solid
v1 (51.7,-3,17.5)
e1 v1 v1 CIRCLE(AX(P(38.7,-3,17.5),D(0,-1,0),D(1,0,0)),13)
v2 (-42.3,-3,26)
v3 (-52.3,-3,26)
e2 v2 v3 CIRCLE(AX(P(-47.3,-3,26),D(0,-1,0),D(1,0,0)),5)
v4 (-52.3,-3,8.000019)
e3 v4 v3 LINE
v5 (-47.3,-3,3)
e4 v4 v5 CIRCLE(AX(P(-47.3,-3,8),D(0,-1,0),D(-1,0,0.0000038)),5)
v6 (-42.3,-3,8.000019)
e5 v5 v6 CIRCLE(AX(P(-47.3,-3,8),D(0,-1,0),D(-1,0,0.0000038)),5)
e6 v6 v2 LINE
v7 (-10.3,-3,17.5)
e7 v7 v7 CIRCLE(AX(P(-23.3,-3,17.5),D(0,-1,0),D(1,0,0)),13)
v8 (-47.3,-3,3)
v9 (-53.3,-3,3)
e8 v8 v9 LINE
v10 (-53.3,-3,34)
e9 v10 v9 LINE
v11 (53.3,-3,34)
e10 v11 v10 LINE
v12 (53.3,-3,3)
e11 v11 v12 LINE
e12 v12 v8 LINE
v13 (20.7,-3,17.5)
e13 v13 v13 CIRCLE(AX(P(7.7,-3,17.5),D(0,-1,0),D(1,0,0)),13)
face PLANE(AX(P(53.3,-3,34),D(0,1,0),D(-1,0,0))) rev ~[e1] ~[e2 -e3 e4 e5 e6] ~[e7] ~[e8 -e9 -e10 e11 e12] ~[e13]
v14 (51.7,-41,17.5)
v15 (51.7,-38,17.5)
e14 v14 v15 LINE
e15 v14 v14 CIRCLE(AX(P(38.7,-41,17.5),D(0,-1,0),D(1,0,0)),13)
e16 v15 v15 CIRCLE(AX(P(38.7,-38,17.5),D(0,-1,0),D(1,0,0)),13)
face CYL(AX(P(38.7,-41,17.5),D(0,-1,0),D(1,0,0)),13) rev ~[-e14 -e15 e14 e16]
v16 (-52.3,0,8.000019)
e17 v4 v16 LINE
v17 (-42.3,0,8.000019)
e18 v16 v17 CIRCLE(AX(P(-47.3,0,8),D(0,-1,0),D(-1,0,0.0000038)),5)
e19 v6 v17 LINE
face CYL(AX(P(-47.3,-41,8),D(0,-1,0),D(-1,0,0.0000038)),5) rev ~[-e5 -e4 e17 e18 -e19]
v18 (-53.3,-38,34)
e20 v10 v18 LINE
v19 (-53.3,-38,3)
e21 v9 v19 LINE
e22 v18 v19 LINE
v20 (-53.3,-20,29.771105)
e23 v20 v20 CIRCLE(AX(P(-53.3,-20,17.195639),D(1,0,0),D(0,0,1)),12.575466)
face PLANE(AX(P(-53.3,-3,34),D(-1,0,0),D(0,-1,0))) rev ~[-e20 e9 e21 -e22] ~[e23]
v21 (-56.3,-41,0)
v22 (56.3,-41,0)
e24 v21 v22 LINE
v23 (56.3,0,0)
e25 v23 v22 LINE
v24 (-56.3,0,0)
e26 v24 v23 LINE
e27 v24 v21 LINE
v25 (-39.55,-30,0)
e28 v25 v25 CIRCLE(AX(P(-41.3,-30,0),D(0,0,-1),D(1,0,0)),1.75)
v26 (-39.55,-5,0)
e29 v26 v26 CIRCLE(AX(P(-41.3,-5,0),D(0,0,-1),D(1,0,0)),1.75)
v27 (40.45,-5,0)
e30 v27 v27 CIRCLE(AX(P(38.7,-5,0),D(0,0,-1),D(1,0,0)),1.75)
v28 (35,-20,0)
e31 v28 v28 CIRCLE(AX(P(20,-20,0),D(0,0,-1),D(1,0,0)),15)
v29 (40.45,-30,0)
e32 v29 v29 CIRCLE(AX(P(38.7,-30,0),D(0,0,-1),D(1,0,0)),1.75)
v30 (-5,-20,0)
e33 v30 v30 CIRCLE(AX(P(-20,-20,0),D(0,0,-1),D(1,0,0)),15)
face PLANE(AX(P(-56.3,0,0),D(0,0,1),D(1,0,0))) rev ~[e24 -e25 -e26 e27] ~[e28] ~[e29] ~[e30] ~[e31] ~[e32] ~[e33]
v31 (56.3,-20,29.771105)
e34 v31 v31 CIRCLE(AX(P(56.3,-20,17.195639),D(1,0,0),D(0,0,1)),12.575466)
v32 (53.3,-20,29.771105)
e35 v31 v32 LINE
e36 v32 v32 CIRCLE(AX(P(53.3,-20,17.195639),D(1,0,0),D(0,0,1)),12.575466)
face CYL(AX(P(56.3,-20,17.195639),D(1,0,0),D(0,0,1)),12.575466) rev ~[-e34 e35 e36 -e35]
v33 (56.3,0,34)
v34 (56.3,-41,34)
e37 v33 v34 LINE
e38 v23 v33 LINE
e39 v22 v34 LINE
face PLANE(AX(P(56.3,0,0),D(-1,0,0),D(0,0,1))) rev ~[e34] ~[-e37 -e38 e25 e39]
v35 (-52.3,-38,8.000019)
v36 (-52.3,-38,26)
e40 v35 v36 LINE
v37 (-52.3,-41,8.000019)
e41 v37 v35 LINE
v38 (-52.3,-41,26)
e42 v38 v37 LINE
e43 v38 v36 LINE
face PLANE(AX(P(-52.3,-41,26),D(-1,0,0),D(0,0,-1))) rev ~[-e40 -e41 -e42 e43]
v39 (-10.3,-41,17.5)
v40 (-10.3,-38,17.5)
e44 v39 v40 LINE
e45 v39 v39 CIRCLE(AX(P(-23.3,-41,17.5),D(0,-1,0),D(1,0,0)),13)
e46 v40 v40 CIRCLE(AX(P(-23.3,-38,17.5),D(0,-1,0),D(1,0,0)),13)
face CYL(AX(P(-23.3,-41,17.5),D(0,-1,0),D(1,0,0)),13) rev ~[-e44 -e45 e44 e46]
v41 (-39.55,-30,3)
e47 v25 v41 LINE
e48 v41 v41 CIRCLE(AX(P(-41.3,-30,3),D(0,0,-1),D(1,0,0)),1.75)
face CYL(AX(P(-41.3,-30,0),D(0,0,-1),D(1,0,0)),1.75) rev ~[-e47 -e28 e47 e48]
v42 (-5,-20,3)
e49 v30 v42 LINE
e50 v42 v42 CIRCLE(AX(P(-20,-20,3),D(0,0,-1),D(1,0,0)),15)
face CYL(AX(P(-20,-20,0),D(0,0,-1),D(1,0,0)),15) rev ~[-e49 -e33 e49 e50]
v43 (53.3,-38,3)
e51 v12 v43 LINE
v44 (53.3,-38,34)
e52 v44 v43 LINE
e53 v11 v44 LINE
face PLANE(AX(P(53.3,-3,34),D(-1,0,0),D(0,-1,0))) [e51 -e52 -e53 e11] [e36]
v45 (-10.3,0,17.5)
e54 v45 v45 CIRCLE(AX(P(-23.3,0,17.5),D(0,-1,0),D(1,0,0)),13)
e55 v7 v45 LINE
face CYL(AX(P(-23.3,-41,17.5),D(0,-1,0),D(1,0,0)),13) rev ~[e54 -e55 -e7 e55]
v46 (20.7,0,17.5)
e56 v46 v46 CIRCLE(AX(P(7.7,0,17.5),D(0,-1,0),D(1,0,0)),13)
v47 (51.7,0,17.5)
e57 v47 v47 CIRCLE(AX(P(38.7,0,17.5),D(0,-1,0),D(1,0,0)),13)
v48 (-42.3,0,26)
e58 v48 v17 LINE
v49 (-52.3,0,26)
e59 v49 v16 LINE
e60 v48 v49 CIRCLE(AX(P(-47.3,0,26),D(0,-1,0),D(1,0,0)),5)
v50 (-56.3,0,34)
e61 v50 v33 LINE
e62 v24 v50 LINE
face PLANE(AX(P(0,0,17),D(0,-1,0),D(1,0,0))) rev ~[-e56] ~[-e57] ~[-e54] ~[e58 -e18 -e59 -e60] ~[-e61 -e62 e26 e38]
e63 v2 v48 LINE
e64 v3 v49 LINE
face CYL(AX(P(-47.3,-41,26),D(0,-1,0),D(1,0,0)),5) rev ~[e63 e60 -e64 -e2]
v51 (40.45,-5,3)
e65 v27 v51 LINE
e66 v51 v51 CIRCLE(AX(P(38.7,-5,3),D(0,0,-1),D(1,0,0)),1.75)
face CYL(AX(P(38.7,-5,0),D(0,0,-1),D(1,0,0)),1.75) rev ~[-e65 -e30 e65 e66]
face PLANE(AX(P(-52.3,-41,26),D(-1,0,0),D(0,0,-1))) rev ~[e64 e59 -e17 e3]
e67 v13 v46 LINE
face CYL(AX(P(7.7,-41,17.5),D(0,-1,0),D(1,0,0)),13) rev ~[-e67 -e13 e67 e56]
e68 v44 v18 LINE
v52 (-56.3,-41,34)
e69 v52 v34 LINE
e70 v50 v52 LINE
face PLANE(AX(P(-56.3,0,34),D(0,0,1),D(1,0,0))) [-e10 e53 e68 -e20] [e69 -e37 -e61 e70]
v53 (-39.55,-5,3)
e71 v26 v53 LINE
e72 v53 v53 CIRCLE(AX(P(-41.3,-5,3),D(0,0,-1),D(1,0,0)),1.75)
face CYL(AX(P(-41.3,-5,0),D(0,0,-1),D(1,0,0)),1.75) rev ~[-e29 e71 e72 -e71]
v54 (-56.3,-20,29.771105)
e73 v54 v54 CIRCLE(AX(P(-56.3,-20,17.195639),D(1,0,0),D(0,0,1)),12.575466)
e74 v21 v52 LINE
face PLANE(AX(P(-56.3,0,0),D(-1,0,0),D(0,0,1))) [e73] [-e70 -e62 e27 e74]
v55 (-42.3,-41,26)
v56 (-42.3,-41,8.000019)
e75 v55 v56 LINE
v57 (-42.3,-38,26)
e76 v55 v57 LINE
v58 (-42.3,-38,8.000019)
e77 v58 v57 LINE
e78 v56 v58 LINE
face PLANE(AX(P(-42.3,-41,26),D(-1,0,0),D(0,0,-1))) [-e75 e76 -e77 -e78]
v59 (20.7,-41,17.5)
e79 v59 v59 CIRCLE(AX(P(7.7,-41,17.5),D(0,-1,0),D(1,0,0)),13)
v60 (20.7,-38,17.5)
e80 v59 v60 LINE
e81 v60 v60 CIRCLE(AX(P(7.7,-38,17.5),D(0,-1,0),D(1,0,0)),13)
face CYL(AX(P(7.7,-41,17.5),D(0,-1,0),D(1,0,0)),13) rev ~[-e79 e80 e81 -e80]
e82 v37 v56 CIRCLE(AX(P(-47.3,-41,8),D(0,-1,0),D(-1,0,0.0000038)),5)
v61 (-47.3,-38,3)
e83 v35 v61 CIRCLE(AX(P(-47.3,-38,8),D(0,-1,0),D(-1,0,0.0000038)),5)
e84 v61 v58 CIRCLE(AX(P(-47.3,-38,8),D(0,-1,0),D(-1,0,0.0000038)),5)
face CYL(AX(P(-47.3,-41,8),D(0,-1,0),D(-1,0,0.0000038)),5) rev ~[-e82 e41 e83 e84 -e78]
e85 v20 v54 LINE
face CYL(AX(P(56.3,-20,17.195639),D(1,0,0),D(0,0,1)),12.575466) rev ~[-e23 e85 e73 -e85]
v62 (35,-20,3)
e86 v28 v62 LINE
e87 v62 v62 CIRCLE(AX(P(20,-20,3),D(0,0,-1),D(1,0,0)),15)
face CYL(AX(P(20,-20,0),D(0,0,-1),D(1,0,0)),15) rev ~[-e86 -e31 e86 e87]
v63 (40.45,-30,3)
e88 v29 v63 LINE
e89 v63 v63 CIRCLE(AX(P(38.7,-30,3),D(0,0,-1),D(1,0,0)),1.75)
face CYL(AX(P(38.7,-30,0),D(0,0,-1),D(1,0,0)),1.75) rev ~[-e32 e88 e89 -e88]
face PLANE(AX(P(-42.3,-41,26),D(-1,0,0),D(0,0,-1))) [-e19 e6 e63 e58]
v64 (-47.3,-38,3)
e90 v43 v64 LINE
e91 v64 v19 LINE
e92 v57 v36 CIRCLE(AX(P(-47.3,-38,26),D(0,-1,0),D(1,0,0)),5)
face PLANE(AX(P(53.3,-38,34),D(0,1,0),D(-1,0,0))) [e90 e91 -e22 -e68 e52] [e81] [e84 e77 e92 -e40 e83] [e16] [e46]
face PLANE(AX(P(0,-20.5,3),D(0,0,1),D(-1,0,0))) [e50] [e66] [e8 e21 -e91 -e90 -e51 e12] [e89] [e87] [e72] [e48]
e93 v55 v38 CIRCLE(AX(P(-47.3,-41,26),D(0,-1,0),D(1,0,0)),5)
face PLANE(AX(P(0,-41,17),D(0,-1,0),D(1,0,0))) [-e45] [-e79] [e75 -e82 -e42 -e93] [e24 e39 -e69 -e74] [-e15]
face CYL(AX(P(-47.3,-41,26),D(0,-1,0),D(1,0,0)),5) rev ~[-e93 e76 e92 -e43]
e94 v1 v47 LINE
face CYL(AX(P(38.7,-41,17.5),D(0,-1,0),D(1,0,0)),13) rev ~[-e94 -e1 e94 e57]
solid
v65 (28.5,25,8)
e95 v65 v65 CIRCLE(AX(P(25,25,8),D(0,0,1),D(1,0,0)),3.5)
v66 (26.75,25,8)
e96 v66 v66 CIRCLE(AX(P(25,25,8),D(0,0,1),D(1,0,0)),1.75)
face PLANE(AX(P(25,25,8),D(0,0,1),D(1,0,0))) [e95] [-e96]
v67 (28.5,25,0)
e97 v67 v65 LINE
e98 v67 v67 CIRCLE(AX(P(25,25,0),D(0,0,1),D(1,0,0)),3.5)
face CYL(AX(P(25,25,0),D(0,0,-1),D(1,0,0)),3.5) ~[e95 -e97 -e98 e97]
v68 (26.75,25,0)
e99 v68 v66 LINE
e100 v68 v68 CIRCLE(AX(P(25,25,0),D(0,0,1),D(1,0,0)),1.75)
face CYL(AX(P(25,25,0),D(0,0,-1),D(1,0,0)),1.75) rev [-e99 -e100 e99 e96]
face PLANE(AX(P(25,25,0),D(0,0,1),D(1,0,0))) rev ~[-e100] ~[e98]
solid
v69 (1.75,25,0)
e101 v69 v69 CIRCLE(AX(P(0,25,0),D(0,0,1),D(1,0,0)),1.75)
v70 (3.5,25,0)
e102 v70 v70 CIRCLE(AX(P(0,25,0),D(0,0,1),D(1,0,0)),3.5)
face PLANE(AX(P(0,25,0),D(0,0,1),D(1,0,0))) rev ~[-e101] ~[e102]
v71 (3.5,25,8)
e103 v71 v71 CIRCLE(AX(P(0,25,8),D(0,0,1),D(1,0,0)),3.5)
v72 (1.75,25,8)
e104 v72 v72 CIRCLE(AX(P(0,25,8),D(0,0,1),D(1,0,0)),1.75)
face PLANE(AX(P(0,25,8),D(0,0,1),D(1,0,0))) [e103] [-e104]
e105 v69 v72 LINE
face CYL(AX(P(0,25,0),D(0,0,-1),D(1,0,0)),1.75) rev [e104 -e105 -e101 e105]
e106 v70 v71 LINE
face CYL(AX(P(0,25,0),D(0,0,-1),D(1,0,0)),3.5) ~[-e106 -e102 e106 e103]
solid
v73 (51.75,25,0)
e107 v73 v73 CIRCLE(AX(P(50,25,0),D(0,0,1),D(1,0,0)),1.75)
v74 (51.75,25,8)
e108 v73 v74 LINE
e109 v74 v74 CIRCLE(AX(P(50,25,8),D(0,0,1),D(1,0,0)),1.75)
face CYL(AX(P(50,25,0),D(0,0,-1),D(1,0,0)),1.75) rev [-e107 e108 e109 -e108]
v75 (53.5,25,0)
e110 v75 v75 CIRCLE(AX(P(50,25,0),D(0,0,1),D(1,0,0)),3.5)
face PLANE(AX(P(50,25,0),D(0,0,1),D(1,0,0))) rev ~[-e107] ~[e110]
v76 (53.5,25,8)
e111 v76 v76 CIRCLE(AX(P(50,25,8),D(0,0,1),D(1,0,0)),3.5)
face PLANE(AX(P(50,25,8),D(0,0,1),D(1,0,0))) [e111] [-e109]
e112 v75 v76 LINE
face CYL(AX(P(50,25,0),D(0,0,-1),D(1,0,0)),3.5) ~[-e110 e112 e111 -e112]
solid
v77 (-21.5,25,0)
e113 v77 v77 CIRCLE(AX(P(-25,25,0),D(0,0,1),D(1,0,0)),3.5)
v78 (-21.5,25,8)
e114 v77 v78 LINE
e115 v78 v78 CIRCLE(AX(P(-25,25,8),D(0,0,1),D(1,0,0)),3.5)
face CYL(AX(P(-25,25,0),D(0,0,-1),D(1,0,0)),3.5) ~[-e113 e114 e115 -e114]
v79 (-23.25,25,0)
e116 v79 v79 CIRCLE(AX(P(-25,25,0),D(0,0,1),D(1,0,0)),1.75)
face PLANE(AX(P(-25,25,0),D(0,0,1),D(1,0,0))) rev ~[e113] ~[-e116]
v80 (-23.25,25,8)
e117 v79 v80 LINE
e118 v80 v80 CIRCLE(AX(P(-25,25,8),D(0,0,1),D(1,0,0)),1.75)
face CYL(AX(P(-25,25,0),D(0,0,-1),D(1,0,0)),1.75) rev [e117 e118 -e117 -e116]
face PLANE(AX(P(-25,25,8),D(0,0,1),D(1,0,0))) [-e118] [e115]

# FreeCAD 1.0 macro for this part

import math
import FreeCAD as App
import Part
import Sketcher

V = App.Vector
Q = App.Units.Quantity


def add_polygon(sketch, points):
    """Adds a closed chain of lines whose ends are joined by coincident constraints."""
    first, n = sketch.GeometryCount, len(points)
    for a, b in zip(points, points[1:] + points[:1]):
        sketch.addGeometry(Part.LineSegment(App.Vector(*a, 0), App.Vector(*b, 0)), False)
    for i in range(n):
        sketch.addConstraint(Sketcher.Constraint("Coincident", first + i, 2, first + (i + 1) % n, 1))

doc = App.newDocument("Part")
body = doc.addObject("PartDesign::Body", "Body")

sketch1 = doc.addObject("Sketcher::SketchObject", "Sketch")
body.addObject(sketch1)
sketch1.AttachmentSupport = (doc.XY_Plane, [""])
sketch1.MapMode = "FlatFace"
sketch1.addGeometry(Part.Circle(V(50, 25, 0), V(0, 0, 1), 3.5), False)
sketch1.addGeometry(Part.Circle(V(50, 25, 0), V(0, 0, 1), 1.8), False)
sketch1.addConstraint(Sketcher.Constraint("Coincident", 1, 3, 0, 3))
sketch1.addConstraint(Sketcher.Constraint("Diameter", 0, Q("7 mm")))
sketch1.addConstraint(Sketcher.Constraint("Diameter", 1, Q("3.5 mm")))
sketch1.addConstraint(Sketcher.Constraint("DistanceX", -1, 1, 0, 3, Q("50 mm")))
sketch1.addConstraint(Sketcher.Constraint("DistanceY", -1, 1, 0, 3, Q("25 mm")))
pad1 = doc.addObject("PartDesign::Pad", "Pad")
body.addObject(pad1)
pad1.Profile = sketch1
pad1.Length = 8
body2 = doc.addObject("PartDesign::Body", "Body001")

sketch2 = doc.addObject("Sketcher::SketchObject", "Sketch001")
body2.addObject(sketch2)
sketch2.AttachmentSupport = (doc.getObject("XZ_Plane001"), [""])
sketch2.MapMode = "FlatFace"
add_polygon(sketch2, [(-56, 34), (-56, 0), (56, 0), (56, 34)])
sketch2.addConstraint(Sketcher.Constraint("Vertical", 0))
sketch2.addConstraint(Sketcher.Constraint("Horizontal", 1))
sketch2.addConstraint(Sketcher.Constraint("Vertical", 2))
sketch2.addConstraint(Sketcher.Constraint("Horizontal", 3))
sketch2.addConstraint(Sketcher.Constraint("Symmetric", 0, 2, 1, 2, -1, 1))
sketch2.addConstraint(Sketcher.Constraint("DistanceY", 0, 2, 0, 1, Q("34 mm")))
sketch2.addConstraint(Sketcher.Constraint("DistanceX", 1, 1, 1, 2, Q("112.6 mm")))
pad2 = doc.addObject("PartDesign::Pad", "Pad001")
body2.addObject(pad2)
pad2.Profile = sketch2
pad2.Length = 41

sketch3 = doc.addObject("Sketcher::SketchObject", "Sketch002")
body2.addObject(sketch3)
sketch3.AttachmentSupport = (doc.getObject("XY_Plane001"), [""])
sketch3.MapMode = "FlatFace"
sketch3.AttachmentOffset = App.Placement(V(0, 0, 34), App.Rotation())
add_polygon(sketch3, [(53, -38), (53, -3), (-53, -3), (-53, -38)])
sketch3.addConstraint(Sketcher.Constraint("Vertical", 0))
sketch3.addConstraint(Sketcher.Constraint("Horizontal", 1))
sketch3.addConstraint(Sketcher.Constraint("Vertical", 2))
sketch3.addConstraint(Sketcher.Constraint("Horizontal", 3))
sketch3.addConstraint(Sketcher.Constraint("DistanceY", 0, 1, 0, 2, Q("35 mm")))
sketch3.addConstraint(Sketcher.Constraint("DistanceX", 1, 2, 1, 1, Q("106.6 mm")))
sketch3.addConstraint(Sketcher.Constraint("DistanceY", 0, 2, -1, 1, Q("3 mm")))
sketch3.addConstraint(Sketcher.Constraint("DistanceX", -1, 1, 0, 2, Q("53.3 mm")))
pocket1 = doc.addObject("PartDesign::Pocket", "Pocket")
body2.addObject(pocket1)
pocket1.Profile = sketch3
pocket1.Length = 31

sketch4 = doc.addObject("Sketcher::SketchObject", "Sketch003")
body2.addObject(sketch4)
sketch4.AttachmentSupport = (doc.getObject("XZ_Plane001"), [""])
sketch4.MapMode = "FlatFace"
sketch4.AttachmentOffset = App.Placement(V(0, 0, 41), App.Rotation())
sketch4.addGeometry(Part.Circle(V(-23, 18, 0), V(0, 0, 1), 13), False)
sketch4.addGeometry(Part.Circle(V(8, 18, 0), V(0, 0, 1), 13), False)
sketch4.addGeometry(Part.Circle(V(39, 18, 0), V(0, 0, 1), 13), False)
sketch4.addGeometry(Part.ArcOfCircle(Part.Circle(V(-47, 26, 0), V(0, 0, 1), 5), math.radians(0), math.radians(180)), False)
sketch4.addGeometry(Part.LineSegment(V(-52, 26, 0), V(-52, 8, 0)), False)
sketch4.addGeometry(Part.ArcOfCircle(Part.Circle(V(-47, 8, 0), V(0, 0, 1), 5), math.radians(180), math.radians(360)), False)
sketch4.addGeometry(Part.LineSegment(V(-42, 8, 0), V(-42, 26, 0)), False)
sketch4.addConstraint(Sketcher.Constraint("Tangent", 3, 2, 4, 1))
sketch4.addConstraint(Sketcher.Constraint("Coincident", 4, 2, 5, 1))
sketch4.addConstraint(Sketcher.Constraint("Coincident", 5, 2, 6, 1))
sketch4.addConstraint(Sketcher.Constraint("Tangent", 6, 2, 3, 1))
sketch4.addConstraint(Sketcher.Constraint("Vertical", 4))
sketch4.addConstraint(Sketcher.Constraint("Vertical", 6))
sketch4.addConstraint(Sketcher.Constraint("Equal", 0, 1))
sketch4.addConstraint(Sketcher.Constraint("Equal", 1, 2))
sketch4.addConstraint(Sketcher.Constraint("Horizontal", 0, 3, 1, 3))
sketch4.addConstraint(Sketcher.Constraint("Horizontal", 1, 3, 2, 3))
sketch4.addConstraint(Sketcher.Constraint("Horizontal", 4, 2, 5, 2))
sketch4.addConstraint(Sketcher.Constraint("Diameter", 0, Q("26 mm")))
sketch4.addConstraint(Sketcher.Constraint("Radius", 3, Q("5 mm")))
sketch4.addConstraint(Sketcher.Constraint("DistanceY", -1, 1, 3, 3, Q("26 mm")))
sketch4.addConstraint(Sketcher.Constraint("DistanceY", -1, 1, 5, 3, Q("8 mm")))
sketch4.addConstraint(Sketcher.Constraint("DistanceX", 0, 3, 1, 3, Q("31 mm")))
sketch4.addConstraint(Sketcher.Constraint("DistanceX", 1, 3, 2, 3, Q("31 mm")))
sketch4.addConstraint(Sketcher.Constraint("DistanceX", 3, 3, 0, 3, Q("24 mm")))
sketch4.addConstraint(Sketcher.Constraint("DistanceX", 0, 3, -1, 1, Q("23.3 mm")))
sketch4.addConstraint(Sketcher.Constraint("DistanceY", -1, 1, 0, 3, Q("17.5 mm")))
sketch4.addConstraint(Sketcher.Constraint("DistanceY", 4, 2, 4, 1, Q("17.999981 mm")))
pocket2 = doc.addObject("PartDesign::Pocket", "Pocket001")
body2.addObject(pocket2)
pocket2.Profile = sketch4
pocket2.Type = "ThroughAll"

sketch5 = doc.addObject("Sketcher::SketchObject", "Sketch004")
body2.addObject(sketch5)
sketch5.AttachmentSupport = (doc.getObject("XY_Plane001"), [""])
sketch5.MapMode = "FlatFace"
sketch5.addGeometry(Part.Circle(V(-41.3, -30, 0), V(0, 0, 1), 1.8), False)
sketch5.addGeometry(Part.Circle(V(38.7, -30, 0), V(0, 0, 1), 1.8), False)
sketch5.addGeometry(Part.Circle(V(-41.3, -5, 0), V(0, 0, 1), 1.8), False)
sketch5.addGeometry(Part.Circle(V(38.7, -5, 0), V(0, 0, 1), 1.8), False)
sketch5.addGeometry(Part.Circle(V(-20, -20, 0), V(0, 0, 1), 15), False)
sketch5.addGeometry(Part.Circle(V(20, -20, 0), V(0, 0, 1), 15), False)
sketch5.addConstraint(Sketcher.Constraint("Equal", 0, 1))
sketch5.addConstraint(Sketcher.Constraint("Equal", 1, 2))
sketch5.addConstraint(Sketcher.Constraint("Equal", 2, 3))
sketch5.addConstraint(Sketcher.Constraint("Equal", 4, 5))
sketch5.addConstraint(Sketcher.Constraint("Symmetric", 4, 3, 5, 3, -2))
sketch5.addConstraint(Sketcher.Constraint("Horizontal", 0, 3, 1, 3))
sketch5.addConstraint(Sketcher.Constraint("Horizontal", 2, 3, 3, 3))
sketch5.addConstraint(Sketcher.Constraint("Vertical", 0, 3, 2, 3))
sketch5.addConstraint(Sketcher.Constraint("Vertical", 1, 3, 3, 3))
sketch5.addConstraint(Sketcher.Constraint("Diameter", 4, Q("30 mm")))
sketch5.addConstraint(Sketcher.Constraint("Diameter", 0, Q("3.5 mm")))
sketch5.addConstraint(Sketcher.Constraint("DistanceY", 0, 3, -1, 1, Q("30 mm")))
sketch5.addConstraint(Sketcher.Constraint("DistanceY", 2, 3, -1, 1, Q("5 mm")))
sketch5.addConstraint(Sketcher.Constraint("DistanceX", 4, 3, -1, 1, Q("20 mm")))
sketch5.addConstraint(Sketcher.Constraint("DistanceY", 4, 3, -1, 1, Q("20 mm")))
sketch5.addConstraint(Sketcher.Constraint("DistanceX", 0, 3, 1, 3, Q("80 mm")))
sketch5.addConstraint(Sketcher.Constraint("DistanceX", 0, 3, -1, 1, Q("41.3 mm")))
pocket3 = doc.addObject("PartDesign::Pocket", "Pocket002")
body2.addObject(pocket3)
pocket3.Profile = sketch5
pocket3.Length = 5
pocket3.Reversed = True

sketch6 = doc.addObject("Sketcher::SketchObject", "Sketch005")
body2.addObject(sketch6)
sketch6.AttachmentSupport = (doc.getObject("YZ_Plane001"), [""])
sketch6.MapMode = "FlatFace"
sketch6.AttachmentOffset = App.Placement(V(0, 0, 56.3), App.Rotation())
sketch6.addGeometry(Part.Circle(V(-20, 17, 0), V(0, 0, 1), 13), False)
sketch6.addConstraint(Sketcher.Constraint("DistanceX", 0, 3, -1, 1, Q("20 mm")))
sketch6.addConstraint(Sketcher.Constraint("Diameter", 0, Q("25.150932 mm")))
sketch6.addConstraint(Sketcher.Constraint("DistanceY", -1, 1, 0, 3, Q("17.195639 mm")))
pocket4 = doc.addObject("PartDesign::Pocket", "Pocket003")
body2.addObject(pocket4)
pocket4.Profile = sketch6
pocket4.Type = "ThroughAll"
body3 = doc.addObject("PartDesign::Body", "Body002")

sketch7 = doc.addObject("Sketcher::SketchObject", "Sketch006")
body3.addObject(sketch7)
sketch7.AttachmentSupport = (doc.getObject("XY_Plane002"), [""])
sketch7.MapMode = "FlatFace"
sketch7.addGeometry(Part.Circle(V(-25, 25, 0), V(0, 0, 1), 3.5), False)
sketch7.addGeometry(Part.Circle(V(-25, 25, 0), V(0, 0, 1), 1.8), False)
sketch7.addConstraint(Sketcher.Constraint("Coincident", 1, 3, 0, 3))
sketch7.addConstraint(Sketcher.Constraint("Diameter", 0, Q("7 mm")))
sketch7.addConstraint(Sketcher.Constraint("Diameter", 1, Q("3.5 mm")))
sketch7.addConstraint(Sketcher.Constraint("DistanceX", 0, 3, -1, 1, Q("25 mm")))
sketch7.addConstraint(Sketcher.Constraint("DistanceY", -1, 1, 0, 3, Q("25 mm")))
pad3 = doc.addObject("PartDesign::Pad", "Pad002")
body3.addObject(pad3)
pad3.Profile = sketch7
pad3.Length = 8
body4 = doc.addObject("PartDesign::Body", "Body003")

sketch8 = doc.addObject("Sketcher::SketchObject", "Sketch007")
body4.addObject(sketch8)
sketch8.AttachmentSupport = (doc.getObject("XY_Plane003"), [""])
sketch8.MapMode = "FlatFace"
sketch8.addGeometry(Part.Circle(V(25, 25, 0), V(0, 0, 1), 3.5), False)
sketch8.addGeometry(Part.Circle(V(25, 25, 0), V(0, 0, 1), 1.8), False)
sketch8.addConstraint(Sketcher.Constraint("Coincident", 1, 3, 0, 3))
sketch8.addConstraint(Sketcher.Constraint("Diameter", 0, Q("7 mm")))
sketch8.addConstraint(Sketcher.Constraint("Diameter", 1, Q("3.5 mm")))
sketch8.addConstraint(Sketcher.Constraint("DistanceX", -1, 1, 0, 3, Q("25 mm")))
sketch8.addConstraint(Sketcher.Constraint("DistanceY", -1, 1, 0, 3, Q("25 mm")))
pad4 = doc.addObject("PartDesign::Pad", "Pad003")
body4.addObject(pad4)
pad4.Profile = sketch8
pad4.Length = 8
body5 = doc.addObject("PartDesign::Body", "Body004")

sketch9 = doc.addObject("Sketcher::SketchObject", "Sketch008")
body5.addObject(sketch9)
sketch9.AttachmentSupport = (doc.getObject("XY_Plane004"), [""])
sketch9.MapMode = "FlatFace"
sketch9.addGeometry(Part.Circle(V(0, 25, 0), V(0, 0, 1), 3.5), False)
sketch9.addGeometry(Part.Circle(V(0, 25, 0), V(0, 0, 1), 1.8), False)
sketch9.addConstraint(Sketcher.Constraint("Coincident", 1, 3, 0, 3))
sketch9.addConstraint(Sketcher.Constraint("PointOnObject", 0, 3, -2))
sketch9.addConstraint(Sketcher.Constraint("Diameter", 0, Q("7 mm")))
sketch9.addConstraint(Sketcher.Constraint("Diameter", 1, Q("3.5 mm")))
sketch9.addConstraint(Sketcher.Constraint("DistanceY", -1, 1, 0, 3, Q("25 mm")))
pad5 = doc.addObject("PartDesign::Pad", "Pad004")
body5.addObject(pad5)
pad5.Profile = sketch9
pad5.Length = 8

doc.recompute()
